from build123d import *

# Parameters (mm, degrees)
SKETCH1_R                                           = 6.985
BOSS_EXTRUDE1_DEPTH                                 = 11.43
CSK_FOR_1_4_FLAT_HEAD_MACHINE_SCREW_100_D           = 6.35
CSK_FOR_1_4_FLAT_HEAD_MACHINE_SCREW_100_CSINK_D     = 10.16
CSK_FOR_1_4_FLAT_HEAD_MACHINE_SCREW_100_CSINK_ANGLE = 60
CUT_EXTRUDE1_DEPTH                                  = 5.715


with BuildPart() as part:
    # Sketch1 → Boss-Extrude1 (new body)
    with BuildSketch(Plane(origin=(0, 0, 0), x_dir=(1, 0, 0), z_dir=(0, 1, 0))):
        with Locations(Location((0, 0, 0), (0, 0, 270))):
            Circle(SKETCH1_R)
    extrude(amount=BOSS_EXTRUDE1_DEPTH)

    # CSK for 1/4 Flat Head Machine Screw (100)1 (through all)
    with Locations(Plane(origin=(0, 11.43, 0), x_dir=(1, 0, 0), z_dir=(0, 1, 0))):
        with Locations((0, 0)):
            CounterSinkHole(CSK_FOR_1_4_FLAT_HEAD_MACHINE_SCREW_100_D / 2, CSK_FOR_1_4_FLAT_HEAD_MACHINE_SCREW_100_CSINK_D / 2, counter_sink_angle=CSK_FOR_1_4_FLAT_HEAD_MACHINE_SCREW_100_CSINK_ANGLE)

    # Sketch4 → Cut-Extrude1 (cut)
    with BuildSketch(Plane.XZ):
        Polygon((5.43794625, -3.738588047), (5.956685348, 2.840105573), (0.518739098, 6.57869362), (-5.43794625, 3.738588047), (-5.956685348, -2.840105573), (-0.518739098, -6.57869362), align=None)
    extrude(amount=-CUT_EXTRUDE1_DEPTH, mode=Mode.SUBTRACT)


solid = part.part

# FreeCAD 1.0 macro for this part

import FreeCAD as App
import Part
import Sketcher

V = App.Vector
Q = App.Units.Quantity


def add_polygon(sketch, points):
    """Adds a closed chain of lines whose ends are joined by coincident constraints."""
    first, n = sketch.GeometryCount, len(points)
    for a, b in zip(points, points[1:] + points[:1]):
        sketch.addGeometry(Part.LineSegment(App.Vector(*a, 0), App.Vector(*b, 0)), False)
    for i in range(n):
        sketch.addConstraint(Sketcher.Constraint("Coincident", first + i, 2, first + (i + 1) % n, 1))

doc = App.newDocument("Part")
body = doc.addObject("PartDesign::Body", "Body")

sketch1 = body.newObject("Sketcher::SketchObject", "Sketch")
sketch1.AttachmentSupport = (doc.getObject("XZ_Plane"), [""])
sketch1.MapMode = "FlatFace"
sketch1.addGeometry(Part.Circle(V(0, 0, 0), V(0, 0, 1), 7), False)
sketch1.addConstraint([
    Sketcher.Constraint("Coincident", 0, 3, -1, 1),
    Sketcher.Constraint("Diameter", 0, Q("0.55 in")),
])
pad1 = body.newObject("PartDesign::Pad", "Pad")
pad1.Profile = sketch1
pad1.Length = Q("0.45 in")
pad1.Reversed = True

sketch2 = body.newObject("Sketcher::SketchObject", "Sketch001")
sketch2.AttachmentSupport = (doc.getObject("XZ_Plane"), [""])
sketch2.MapMode = "FlatFace"
sketch2.AttachmentOffset = App.Placement(V(0, 0, -0.45 * 25.4), App.Rotation())
sketch2.addGeometry(Part.Circle(V(0, 0, 0), V(0, 0, 1), 3.2), False)
sketch2.addConstraint([
    Sketcher.Constraint("Coincident", 0, 3, -1, 1),
    Sketcher.Constraint("Diameter", 0, Q("0.25 in")),
])
doc.recompute()
hole = body.newObject("PartDesign::Hole", "Hole")
hole.Profile = sketch2
hole.ThreadType = "None"
hole.Diameter = Q("0.25 in")
hole.DepthType = "ThroughAll"
hole.HoleCutType = "Countersink"
hole.HoleCutDiameter = Q("0.4 in")
hole.HoleCutCountersinkAngle = 60
hole.Reversed = True

sketch3 = body.newObject("Sketcher::SketchObject", "Sketch002")
sketch3.AttachmentSupport = (doc.getObject("XZ_Plane"), [""])
sketch3.MapMode = "FlatFace"
add_polygon(sketch3, [(5, -4), (6, 3), (1, 7), (-5, 4), (-6, -3), (-1, -7)])
sketch3.addConstraint([
    Sketcher.Constraint("Symmetric", 0, 2, 3, 2, -1, 1),
    Sketcher.Constraint("Symmetric", 1, 2, 4, 2, -1, 1),
    Sketcher.Constraint("Symmetric", 2, 2, 5, 2, -1, 1),
    Sketcher.Constraint("Equal", 0, 1),
    Sketcher.Constraint("Equal", 1, 2),
    Sketcher.Constraint("DistanceY", 3, 2, 1, 2, Q("9.418799 mm")),
    Sketcher.Constraint("DistanceX", -1, 1, 1, 2, Q("0.518739 mm")),
    Sketcher.Constraint("DistanceY", -1, 1, 2, 2, Q("3.738588 mm")),
    Sketcher.Constraint("DistanceY", 0, 2, 1, 2, Q("3.738588 mm")),
])
pocket1 = body.newObject("PartDesign::Pocket", "Pocket")
pocket1.Profile = sketch3
pocket1.Length = Q("0.225 in")

doc.recompute()
